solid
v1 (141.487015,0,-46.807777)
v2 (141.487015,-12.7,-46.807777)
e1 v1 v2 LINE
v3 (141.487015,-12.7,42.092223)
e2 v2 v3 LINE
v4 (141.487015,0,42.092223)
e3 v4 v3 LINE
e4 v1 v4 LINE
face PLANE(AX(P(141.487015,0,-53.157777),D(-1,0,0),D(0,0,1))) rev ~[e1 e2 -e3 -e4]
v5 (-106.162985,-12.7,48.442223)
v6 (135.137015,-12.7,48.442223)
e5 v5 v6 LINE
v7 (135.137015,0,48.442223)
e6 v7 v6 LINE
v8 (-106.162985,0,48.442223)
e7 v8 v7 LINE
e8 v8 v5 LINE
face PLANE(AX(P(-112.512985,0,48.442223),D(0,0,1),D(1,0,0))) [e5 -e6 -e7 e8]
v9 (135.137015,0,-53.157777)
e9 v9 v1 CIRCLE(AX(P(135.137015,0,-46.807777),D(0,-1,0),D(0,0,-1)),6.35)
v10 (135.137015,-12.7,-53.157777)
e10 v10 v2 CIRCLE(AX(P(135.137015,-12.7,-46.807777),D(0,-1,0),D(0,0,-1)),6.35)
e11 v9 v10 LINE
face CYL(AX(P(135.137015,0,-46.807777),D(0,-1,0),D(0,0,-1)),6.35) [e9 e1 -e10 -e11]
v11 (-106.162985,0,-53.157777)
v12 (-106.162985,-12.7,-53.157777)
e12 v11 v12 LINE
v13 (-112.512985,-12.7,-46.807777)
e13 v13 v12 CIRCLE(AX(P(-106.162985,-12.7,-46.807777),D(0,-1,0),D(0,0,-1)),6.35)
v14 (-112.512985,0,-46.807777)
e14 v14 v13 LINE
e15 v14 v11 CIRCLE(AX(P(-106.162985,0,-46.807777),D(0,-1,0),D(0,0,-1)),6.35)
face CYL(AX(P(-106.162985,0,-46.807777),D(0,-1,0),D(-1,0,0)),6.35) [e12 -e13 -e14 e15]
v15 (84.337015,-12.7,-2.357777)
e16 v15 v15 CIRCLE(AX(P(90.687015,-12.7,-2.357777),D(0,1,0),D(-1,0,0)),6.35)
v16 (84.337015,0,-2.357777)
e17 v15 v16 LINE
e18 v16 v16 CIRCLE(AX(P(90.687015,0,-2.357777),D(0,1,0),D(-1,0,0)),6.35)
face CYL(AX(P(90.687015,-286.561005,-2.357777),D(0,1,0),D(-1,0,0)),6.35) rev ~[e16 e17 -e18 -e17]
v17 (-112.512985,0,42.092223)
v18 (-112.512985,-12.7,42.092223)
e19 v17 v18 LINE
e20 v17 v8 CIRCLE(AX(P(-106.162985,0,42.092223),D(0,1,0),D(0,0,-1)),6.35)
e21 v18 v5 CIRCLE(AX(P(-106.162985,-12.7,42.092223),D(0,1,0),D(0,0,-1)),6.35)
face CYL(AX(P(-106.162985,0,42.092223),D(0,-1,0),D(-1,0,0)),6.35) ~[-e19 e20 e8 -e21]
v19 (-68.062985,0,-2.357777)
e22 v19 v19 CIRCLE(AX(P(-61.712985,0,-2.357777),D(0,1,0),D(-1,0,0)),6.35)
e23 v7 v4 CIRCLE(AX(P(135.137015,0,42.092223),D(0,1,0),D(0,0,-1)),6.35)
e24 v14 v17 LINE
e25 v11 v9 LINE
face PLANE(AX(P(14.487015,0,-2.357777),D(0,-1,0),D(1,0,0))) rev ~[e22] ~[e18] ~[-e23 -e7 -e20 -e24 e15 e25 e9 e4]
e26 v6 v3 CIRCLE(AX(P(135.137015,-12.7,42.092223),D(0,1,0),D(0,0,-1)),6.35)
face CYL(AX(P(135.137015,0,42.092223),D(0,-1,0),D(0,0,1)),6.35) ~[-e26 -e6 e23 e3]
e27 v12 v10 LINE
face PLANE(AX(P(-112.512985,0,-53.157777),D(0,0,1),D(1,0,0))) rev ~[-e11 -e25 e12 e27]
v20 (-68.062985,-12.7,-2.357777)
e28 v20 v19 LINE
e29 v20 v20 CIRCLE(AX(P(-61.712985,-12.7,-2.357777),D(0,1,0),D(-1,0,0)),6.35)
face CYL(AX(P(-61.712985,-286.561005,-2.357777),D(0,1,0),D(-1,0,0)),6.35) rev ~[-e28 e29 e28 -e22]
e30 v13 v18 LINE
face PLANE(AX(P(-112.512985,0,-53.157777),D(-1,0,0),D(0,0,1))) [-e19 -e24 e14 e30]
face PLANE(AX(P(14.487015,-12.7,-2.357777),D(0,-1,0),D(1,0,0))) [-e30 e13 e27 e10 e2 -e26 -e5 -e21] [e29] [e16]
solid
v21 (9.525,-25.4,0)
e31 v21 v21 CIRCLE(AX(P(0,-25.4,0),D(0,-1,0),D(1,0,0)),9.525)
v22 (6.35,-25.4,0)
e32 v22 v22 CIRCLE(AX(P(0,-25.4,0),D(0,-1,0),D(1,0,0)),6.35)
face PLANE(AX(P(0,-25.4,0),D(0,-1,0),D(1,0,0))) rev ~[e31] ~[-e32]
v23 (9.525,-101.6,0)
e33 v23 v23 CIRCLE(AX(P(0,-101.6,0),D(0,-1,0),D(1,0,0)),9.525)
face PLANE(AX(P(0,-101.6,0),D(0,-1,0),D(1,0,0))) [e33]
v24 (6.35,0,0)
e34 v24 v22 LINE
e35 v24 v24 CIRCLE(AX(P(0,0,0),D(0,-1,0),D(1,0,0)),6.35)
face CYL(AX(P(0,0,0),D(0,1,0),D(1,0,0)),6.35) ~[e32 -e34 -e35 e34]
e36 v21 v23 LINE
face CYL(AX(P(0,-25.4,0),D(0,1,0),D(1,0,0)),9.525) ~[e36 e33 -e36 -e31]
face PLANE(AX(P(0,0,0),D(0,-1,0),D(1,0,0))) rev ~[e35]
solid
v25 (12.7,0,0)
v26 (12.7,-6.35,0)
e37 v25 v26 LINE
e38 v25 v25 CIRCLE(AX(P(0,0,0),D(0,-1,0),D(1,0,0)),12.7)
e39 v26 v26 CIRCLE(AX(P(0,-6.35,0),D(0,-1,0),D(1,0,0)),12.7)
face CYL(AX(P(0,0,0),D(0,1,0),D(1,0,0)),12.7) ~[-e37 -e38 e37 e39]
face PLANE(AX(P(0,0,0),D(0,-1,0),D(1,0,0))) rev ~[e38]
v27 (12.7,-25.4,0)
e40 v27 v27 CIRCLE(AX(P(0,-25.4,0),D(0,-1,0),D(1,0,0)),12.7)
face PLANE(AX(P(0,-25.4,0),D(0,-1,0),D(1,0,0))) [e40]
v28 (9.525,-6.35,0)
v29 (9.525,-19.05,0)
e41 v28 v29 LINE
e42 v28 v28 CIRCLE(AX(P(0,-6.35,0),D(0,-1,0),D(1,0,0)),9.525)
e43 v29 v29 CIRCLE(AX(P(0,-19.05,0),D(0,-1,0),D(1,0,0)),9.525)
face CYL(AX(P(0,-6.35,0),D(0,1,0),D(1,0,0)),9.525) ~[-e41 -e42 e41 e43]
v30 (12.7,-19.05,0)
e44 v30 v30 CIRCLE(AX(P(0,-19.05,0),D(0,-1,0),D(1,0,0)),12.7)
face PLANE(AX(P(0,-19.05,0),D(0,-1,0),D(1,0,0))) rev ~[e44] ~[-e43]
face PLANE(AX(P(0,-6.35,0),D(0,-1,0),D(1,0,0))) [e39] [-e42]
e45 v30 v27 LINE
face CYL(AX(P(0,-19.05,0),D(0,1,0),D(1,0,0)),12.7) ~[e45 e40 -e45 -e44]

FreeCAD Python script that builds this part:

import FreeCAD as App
import Part
import Sketcher
Q = App.Units.Quantity


def edges_at(feature, points):
    """Names of the edges that pass closest to the given points."""
    edges = feature.Shape.Edges
    near = lambda p: min(range(len(edges)), key=lambda i: edges[i].distToShape(Part.Vertex(*p))[0])
    return sorted({f"Edge{near(p) + 1}" for p in points})

doc = App.newDocument("Part")
body = doc.addObject("PartDesign::Body", "Body")

# Sketch on XZ plane
sketch1 = body.newObject("Sketcher::SketchObject", "Sketch")
sketch1.AttachmentSupport = (doc.getObject("XZ_Plane"), [""])
sketch1.MapMode = "FlatFace"
sketch1.addGeometry([
    Part.LineSegment(App.Vector(-113, 48, 0), App.Vector(-113, -53, 0)),
    Part.LineSegment(App.Vector(-113, -53, 0), App.Vector(141, -53, 0)),
    Part.LineSegment(App.Vector(141, -53, 0), App.Vector(141, 48, 0)),
    Part.LineSegment(App.Vector(141, 48, 0), App.Vector(-113, 48, 0)),
], False)
sketch1.addConstraint([
    Sketcher.Constraint("Coincident", 0, 2, 1, 1),
    Sketcher.Constraint("Coincident", 1, 2, 2, 1),
    Sketcher.Constraint("Coincident", 2, 2, 3, 1),
    Sketcher.Constraint("Coincident", 3, 2, 0, 1),
    Sketcher.Constraint("Vertical", 0),
    Sketcher.Constraint("Horizontal", 1),
    Sketcher.Constraint("Vertical", 2),
    Sketcher.Constraint("Horizontal", 3),
    Sketcher.Constraint("DistanceX", 1, 1, 1, 2, Q("10 in")),
    Sketcher.Constraint("DistanceY", 0, 2, 0, 1, Q("4 in")),
    Sketcher.Constraint("DistanceX", 0, 2, -1, 1, Q("112.512985 mm")),
    Sketcher.Constraint("DistanceY", 0, 2, -1, 1, Q("53.157777 mm")),
])
pad1 = body.newObject("PartDesign::Pad", "Pad")
pad1.Profile = sketch1
pad1.Length = Q("0.5 in")

# Sketch on XZ plane
sketch2 = body.newObject("Sketcher::SketchObject", "Sketch001")
sketch2.AttachmentSupport = (doc.getObject("XZ_Plane"), [""])
sketch2.MapMode = "FlatFace"
sketch2.AttachmentOffset = App.Placement(App.Vector(0, 0, 0.5 * 25.4), App.Rotation())
sketch2.addGeometry([
    Part.Circle(App.Vector(-62, -2, 0), App.Vector(0, 0, 1), 6),
    Part.Circle(App.Vector(91, -2, 0), App.Vector(0, 0, 1), 6),
], False)
sketch2.addConstraint([
    Sketcher.Constraint("Equal", 0, 1),
    Sketcher.Constraint("Horizontal", 0, 3, 1, 3),
    Sketcher.Constraint("Diameter", 0, Q("0.5 in")),
    Sketcher.Constraint("DistanceX", 0, 3, 1, 3, Q("6 in")),
    Sketcher.Constraint("DistanceX", 0, 3, -1, 1, Q("61.712985 mm")),
    Sketcher.Constraint("DistanceY", 0, 3, -1, 1, Q("2.357777 mm")),
])
doc.recompute()
hole = body.newObject("PartDesign::Hole", "Hole")
hole.Profile = sketch2
hole.ThreadType = "None"
hole.Diameter = Q("0.5 in")
hole.DepthType = "ThroughAll"
doc.recompute()

fillet = body.newObject("PartDesign::Fillet", "Fillet")
fillet.Base = (hole, edges_at(hole, [
    (-112.513, -6.35, 48.442),
    (-112.513, -6.35, -53.158),
    (141.487, -6.35, 48.442),
    (141.487, -6.35, -53.158),
]))
fillet.Radius = Q("0.25 in")
body2 = doc.addObject("PartDesign::Body", "Body001")

# Sketch on XZ plane
sketch3 = body2.newObject("Sketcher::SketchObject", "Sketch002")
sketch3.AttachmentSupport = (doc.getObject("XZ_Plane001"), [""])
sketch3.MapMode = "FlatFace"
sketch3.addGeometry(Part.Circle(App.Vector(0, 0, 0), App.Vector(0, 0, 1), 13), False)
sketch3.addConstraint([
    Sketcher.Constraint("Coincident", 0, 3, -1, 1),
    Sketcher.Constraint("Diameter", 0, Q("1 in")),
])
pad2 = body2.newObject("PartDesign::Pad", "Pad001")
pad2.Profile = sketch3
pad2.Length = Q("0.25 in")

# Sketch on XZ plane
sketch4 = body2.newObject("Sketcher::SketchObject", "Sketch003")
sketch4.AttachmentSupport = (doc.getObject("XZ_Plane001"), [""])
sketch4.MapMode = "FlatFace"
sketch4.AttachmentOffset = App.Placement(App.Vector(0, 0, 0.25 * 25.4), App.Rotation())
sketch4.addGeometry(Part.Circle(App.Vector(0, 0, 0), App.Vector(0, 0, 1), 10), False)
sketch4.addConstraint([
    Sketcher.Constraint("Coincident", 0, 3, -1, 1),
    Sketcher.Constraint("Diameter", 0, Q("0.75 in")),
])
pad3 = body2.newObject("PartDesign::Pad", "Pad002")
pad3.Profile = sketch4
pad3.Length = Q("0.5 in")

# Sketch on XZ plane
sketch5 = body2.newObject("Sketcher::SketchObject", "Sketch004")
sketch5.AttachmentSupport = (doc.getObject("XZ_Plane001"), [""])
sketch5.MapMode = "FlatFace"
sketch5.AttachmentOffset = App.Placement(App.Vector(0, 0, 0.75 * 25.4), App.Rotation())
sketch5.addGeometry(Part.Circle(App.Vector(0, 0, 0), App.Vector(0, 0, 1), 13), False)
sketch5.addConstraint([
    Sketcher.Constraint("Coincident", 0, 3, -1, 1),
    Sketcher.Constraint("Diameter", 0, Q("1 in")),
])
pad4 = body2.newObject("PartDesign::Pad", "Pad003")
pad4.Profile = sketch5
pad4.Length = Q("0.25 in")
body3 = doc.addObject("PartDesign::Body", "Body002")

# Sketch on XZ plane
sketch6 = body3.newObject("Sketcher::SketchObject", "Sketch005")
sketch6.AttachmentSupport = (doc.getObject("XZ_Plane002"), [""])
sketch6.MapMode = "FlatFace"
sketch6.addGeometry(Part.Circle(App.Vector(0, 0, 0), App.Vector(0, 0, 1), 6), False)
sketch6.addConstraint([
    Sketcher.Constraint("Coincident", 0, 3, -1, 1),
    Sketcher.Constraint("Diameter", 0, Q("0.5 in")),
])
pad5 = body3.newObject("PartDesign::Pad", "Pad004")
pad5.Profile = sketch6
pad5.Length = Q("1 in")

# Sketch on XZ plane
sketch7 = body3.newObject("Sketcher::SketchObject", "Sketch006")
sketch7.AttachmentSupport = (doc.getObject("XZ_Plane002"), [""])
sketch7.MapMode = "FlatFace"
sketch7.AttachmentOffset = App.Placement(App.Vector(0, 0, 1 * 25.4), App.Rotation())
sketch7.addGeometry(Part.Circle(App.Vector(0, 0, 0), App.Vector(0, 0, 1), 10), False)
sketch7.addConstraint([
    Sketcher.Constraint("Coincident", 0, 3, -1, 1),
    Sketcher.Constraint("Diameter", 0, Q("0.75 in")),
])
pad6 = body3.newObject("PartDesign::Pad", "Pad005")
pad6.Profile = sketch7
pad6.Length = Q("3 in")

doc.recompute()
